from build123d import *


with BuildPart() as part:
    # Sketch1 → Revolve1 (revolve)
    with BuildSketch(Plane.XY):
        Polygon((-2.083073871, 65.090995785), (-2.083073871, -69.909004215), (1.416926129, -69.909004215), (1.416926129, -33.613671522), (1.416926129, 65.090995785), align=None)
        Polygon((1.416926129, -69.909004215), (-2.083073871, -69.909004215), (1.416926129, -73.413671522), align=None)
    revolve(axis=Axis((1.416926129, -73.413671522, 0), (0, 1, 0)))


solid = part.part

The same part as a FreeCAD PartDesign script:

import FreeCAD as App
import Part
import Sketcher
Q = App.Units.Quantity

doc = App.newDocument("Part")
body = doc.addObject("PartDesign::Body", "Body")

# Sketch on XY plane
sketch1 = body.newObject("Sketcher::SketchObject", "Sketch")
sketch1.AttachmentSupport = (doc.getObject("XY_Plane"), [""])
sketch1.MapMode = "FlatFace"
sketch1.addGeometry([
    Part.LineSegment(App.Vector(-2.1, 65.1, 0), App.Vector(-2.1, -69.9, 0)),
    Part.LineSegment(App.Vector(-2.1, -69.9, 0), App.Vector(1.4, -73.4, 0)),
    Part.LineSegment(App.Vector(1.4, -73.4, 0), App.Vector(1.4, 65.1, 0)),
    Part.LineSegment(App.Vector(1.4, 65.1, 0), App.Vector(-2.1, 65.1, 0)),
], False)
sketch1.addGeometry(Part.LineSegment(App.Vector(1.4, -73.4, 0), App.Vector(1.4, 65.1, 0)), True)  # axis
sketch1.addConstraint([
    Sketcher.Constraint("Coincident", 0, 2, 1, 1),
    Sketcher.Constraint("Coincident", 1, 2, 2, 1),
    Sketcher.Constraint("Coincident", 2, 2, 3, 1),
    Sketcher.Constraint("Coincident", 3, 2, 0, 1),
    Sketcher.Constraint("Vertical", 0),
    Sketcher.Constraint("Vertical", 2),
    Sketcher.Constraint("Horizontal", 3),
    Sketcher.Constraint("Vertical", 4),
    Sketcher.Constraint("Coincident", 4, 1, 1, 2),
    Sketcher.Constraint("Horizontal", 3, 2, 4, 2),
    Sketcher.Constraint("DistanceY", 0, 2, 0, 1, Q("135 mm")),
    Sketcher.Constraint("DistanceX", 3, 2, 3, 1, Q("3.5 mm")),
    Sketcher.Constraint("Distance", 1, Q("4.953049 mm")),
    Sketcher.Constraint("DistanceY", 1, 2, -1, 1, Q("73.413672 mm")),
    Sketcher.Constraint("DistanceX", 0, 2, -1, 1, Q("2.083074 mm")),
])
revolution = body.newObject("PartDesign::Revolution", "Revolution")
revolution.Profile = sketch1
revolution.ReferenceAxis = (sketch1, ["Axis0"])
revolution.Angle = 360

doc.recompute()
